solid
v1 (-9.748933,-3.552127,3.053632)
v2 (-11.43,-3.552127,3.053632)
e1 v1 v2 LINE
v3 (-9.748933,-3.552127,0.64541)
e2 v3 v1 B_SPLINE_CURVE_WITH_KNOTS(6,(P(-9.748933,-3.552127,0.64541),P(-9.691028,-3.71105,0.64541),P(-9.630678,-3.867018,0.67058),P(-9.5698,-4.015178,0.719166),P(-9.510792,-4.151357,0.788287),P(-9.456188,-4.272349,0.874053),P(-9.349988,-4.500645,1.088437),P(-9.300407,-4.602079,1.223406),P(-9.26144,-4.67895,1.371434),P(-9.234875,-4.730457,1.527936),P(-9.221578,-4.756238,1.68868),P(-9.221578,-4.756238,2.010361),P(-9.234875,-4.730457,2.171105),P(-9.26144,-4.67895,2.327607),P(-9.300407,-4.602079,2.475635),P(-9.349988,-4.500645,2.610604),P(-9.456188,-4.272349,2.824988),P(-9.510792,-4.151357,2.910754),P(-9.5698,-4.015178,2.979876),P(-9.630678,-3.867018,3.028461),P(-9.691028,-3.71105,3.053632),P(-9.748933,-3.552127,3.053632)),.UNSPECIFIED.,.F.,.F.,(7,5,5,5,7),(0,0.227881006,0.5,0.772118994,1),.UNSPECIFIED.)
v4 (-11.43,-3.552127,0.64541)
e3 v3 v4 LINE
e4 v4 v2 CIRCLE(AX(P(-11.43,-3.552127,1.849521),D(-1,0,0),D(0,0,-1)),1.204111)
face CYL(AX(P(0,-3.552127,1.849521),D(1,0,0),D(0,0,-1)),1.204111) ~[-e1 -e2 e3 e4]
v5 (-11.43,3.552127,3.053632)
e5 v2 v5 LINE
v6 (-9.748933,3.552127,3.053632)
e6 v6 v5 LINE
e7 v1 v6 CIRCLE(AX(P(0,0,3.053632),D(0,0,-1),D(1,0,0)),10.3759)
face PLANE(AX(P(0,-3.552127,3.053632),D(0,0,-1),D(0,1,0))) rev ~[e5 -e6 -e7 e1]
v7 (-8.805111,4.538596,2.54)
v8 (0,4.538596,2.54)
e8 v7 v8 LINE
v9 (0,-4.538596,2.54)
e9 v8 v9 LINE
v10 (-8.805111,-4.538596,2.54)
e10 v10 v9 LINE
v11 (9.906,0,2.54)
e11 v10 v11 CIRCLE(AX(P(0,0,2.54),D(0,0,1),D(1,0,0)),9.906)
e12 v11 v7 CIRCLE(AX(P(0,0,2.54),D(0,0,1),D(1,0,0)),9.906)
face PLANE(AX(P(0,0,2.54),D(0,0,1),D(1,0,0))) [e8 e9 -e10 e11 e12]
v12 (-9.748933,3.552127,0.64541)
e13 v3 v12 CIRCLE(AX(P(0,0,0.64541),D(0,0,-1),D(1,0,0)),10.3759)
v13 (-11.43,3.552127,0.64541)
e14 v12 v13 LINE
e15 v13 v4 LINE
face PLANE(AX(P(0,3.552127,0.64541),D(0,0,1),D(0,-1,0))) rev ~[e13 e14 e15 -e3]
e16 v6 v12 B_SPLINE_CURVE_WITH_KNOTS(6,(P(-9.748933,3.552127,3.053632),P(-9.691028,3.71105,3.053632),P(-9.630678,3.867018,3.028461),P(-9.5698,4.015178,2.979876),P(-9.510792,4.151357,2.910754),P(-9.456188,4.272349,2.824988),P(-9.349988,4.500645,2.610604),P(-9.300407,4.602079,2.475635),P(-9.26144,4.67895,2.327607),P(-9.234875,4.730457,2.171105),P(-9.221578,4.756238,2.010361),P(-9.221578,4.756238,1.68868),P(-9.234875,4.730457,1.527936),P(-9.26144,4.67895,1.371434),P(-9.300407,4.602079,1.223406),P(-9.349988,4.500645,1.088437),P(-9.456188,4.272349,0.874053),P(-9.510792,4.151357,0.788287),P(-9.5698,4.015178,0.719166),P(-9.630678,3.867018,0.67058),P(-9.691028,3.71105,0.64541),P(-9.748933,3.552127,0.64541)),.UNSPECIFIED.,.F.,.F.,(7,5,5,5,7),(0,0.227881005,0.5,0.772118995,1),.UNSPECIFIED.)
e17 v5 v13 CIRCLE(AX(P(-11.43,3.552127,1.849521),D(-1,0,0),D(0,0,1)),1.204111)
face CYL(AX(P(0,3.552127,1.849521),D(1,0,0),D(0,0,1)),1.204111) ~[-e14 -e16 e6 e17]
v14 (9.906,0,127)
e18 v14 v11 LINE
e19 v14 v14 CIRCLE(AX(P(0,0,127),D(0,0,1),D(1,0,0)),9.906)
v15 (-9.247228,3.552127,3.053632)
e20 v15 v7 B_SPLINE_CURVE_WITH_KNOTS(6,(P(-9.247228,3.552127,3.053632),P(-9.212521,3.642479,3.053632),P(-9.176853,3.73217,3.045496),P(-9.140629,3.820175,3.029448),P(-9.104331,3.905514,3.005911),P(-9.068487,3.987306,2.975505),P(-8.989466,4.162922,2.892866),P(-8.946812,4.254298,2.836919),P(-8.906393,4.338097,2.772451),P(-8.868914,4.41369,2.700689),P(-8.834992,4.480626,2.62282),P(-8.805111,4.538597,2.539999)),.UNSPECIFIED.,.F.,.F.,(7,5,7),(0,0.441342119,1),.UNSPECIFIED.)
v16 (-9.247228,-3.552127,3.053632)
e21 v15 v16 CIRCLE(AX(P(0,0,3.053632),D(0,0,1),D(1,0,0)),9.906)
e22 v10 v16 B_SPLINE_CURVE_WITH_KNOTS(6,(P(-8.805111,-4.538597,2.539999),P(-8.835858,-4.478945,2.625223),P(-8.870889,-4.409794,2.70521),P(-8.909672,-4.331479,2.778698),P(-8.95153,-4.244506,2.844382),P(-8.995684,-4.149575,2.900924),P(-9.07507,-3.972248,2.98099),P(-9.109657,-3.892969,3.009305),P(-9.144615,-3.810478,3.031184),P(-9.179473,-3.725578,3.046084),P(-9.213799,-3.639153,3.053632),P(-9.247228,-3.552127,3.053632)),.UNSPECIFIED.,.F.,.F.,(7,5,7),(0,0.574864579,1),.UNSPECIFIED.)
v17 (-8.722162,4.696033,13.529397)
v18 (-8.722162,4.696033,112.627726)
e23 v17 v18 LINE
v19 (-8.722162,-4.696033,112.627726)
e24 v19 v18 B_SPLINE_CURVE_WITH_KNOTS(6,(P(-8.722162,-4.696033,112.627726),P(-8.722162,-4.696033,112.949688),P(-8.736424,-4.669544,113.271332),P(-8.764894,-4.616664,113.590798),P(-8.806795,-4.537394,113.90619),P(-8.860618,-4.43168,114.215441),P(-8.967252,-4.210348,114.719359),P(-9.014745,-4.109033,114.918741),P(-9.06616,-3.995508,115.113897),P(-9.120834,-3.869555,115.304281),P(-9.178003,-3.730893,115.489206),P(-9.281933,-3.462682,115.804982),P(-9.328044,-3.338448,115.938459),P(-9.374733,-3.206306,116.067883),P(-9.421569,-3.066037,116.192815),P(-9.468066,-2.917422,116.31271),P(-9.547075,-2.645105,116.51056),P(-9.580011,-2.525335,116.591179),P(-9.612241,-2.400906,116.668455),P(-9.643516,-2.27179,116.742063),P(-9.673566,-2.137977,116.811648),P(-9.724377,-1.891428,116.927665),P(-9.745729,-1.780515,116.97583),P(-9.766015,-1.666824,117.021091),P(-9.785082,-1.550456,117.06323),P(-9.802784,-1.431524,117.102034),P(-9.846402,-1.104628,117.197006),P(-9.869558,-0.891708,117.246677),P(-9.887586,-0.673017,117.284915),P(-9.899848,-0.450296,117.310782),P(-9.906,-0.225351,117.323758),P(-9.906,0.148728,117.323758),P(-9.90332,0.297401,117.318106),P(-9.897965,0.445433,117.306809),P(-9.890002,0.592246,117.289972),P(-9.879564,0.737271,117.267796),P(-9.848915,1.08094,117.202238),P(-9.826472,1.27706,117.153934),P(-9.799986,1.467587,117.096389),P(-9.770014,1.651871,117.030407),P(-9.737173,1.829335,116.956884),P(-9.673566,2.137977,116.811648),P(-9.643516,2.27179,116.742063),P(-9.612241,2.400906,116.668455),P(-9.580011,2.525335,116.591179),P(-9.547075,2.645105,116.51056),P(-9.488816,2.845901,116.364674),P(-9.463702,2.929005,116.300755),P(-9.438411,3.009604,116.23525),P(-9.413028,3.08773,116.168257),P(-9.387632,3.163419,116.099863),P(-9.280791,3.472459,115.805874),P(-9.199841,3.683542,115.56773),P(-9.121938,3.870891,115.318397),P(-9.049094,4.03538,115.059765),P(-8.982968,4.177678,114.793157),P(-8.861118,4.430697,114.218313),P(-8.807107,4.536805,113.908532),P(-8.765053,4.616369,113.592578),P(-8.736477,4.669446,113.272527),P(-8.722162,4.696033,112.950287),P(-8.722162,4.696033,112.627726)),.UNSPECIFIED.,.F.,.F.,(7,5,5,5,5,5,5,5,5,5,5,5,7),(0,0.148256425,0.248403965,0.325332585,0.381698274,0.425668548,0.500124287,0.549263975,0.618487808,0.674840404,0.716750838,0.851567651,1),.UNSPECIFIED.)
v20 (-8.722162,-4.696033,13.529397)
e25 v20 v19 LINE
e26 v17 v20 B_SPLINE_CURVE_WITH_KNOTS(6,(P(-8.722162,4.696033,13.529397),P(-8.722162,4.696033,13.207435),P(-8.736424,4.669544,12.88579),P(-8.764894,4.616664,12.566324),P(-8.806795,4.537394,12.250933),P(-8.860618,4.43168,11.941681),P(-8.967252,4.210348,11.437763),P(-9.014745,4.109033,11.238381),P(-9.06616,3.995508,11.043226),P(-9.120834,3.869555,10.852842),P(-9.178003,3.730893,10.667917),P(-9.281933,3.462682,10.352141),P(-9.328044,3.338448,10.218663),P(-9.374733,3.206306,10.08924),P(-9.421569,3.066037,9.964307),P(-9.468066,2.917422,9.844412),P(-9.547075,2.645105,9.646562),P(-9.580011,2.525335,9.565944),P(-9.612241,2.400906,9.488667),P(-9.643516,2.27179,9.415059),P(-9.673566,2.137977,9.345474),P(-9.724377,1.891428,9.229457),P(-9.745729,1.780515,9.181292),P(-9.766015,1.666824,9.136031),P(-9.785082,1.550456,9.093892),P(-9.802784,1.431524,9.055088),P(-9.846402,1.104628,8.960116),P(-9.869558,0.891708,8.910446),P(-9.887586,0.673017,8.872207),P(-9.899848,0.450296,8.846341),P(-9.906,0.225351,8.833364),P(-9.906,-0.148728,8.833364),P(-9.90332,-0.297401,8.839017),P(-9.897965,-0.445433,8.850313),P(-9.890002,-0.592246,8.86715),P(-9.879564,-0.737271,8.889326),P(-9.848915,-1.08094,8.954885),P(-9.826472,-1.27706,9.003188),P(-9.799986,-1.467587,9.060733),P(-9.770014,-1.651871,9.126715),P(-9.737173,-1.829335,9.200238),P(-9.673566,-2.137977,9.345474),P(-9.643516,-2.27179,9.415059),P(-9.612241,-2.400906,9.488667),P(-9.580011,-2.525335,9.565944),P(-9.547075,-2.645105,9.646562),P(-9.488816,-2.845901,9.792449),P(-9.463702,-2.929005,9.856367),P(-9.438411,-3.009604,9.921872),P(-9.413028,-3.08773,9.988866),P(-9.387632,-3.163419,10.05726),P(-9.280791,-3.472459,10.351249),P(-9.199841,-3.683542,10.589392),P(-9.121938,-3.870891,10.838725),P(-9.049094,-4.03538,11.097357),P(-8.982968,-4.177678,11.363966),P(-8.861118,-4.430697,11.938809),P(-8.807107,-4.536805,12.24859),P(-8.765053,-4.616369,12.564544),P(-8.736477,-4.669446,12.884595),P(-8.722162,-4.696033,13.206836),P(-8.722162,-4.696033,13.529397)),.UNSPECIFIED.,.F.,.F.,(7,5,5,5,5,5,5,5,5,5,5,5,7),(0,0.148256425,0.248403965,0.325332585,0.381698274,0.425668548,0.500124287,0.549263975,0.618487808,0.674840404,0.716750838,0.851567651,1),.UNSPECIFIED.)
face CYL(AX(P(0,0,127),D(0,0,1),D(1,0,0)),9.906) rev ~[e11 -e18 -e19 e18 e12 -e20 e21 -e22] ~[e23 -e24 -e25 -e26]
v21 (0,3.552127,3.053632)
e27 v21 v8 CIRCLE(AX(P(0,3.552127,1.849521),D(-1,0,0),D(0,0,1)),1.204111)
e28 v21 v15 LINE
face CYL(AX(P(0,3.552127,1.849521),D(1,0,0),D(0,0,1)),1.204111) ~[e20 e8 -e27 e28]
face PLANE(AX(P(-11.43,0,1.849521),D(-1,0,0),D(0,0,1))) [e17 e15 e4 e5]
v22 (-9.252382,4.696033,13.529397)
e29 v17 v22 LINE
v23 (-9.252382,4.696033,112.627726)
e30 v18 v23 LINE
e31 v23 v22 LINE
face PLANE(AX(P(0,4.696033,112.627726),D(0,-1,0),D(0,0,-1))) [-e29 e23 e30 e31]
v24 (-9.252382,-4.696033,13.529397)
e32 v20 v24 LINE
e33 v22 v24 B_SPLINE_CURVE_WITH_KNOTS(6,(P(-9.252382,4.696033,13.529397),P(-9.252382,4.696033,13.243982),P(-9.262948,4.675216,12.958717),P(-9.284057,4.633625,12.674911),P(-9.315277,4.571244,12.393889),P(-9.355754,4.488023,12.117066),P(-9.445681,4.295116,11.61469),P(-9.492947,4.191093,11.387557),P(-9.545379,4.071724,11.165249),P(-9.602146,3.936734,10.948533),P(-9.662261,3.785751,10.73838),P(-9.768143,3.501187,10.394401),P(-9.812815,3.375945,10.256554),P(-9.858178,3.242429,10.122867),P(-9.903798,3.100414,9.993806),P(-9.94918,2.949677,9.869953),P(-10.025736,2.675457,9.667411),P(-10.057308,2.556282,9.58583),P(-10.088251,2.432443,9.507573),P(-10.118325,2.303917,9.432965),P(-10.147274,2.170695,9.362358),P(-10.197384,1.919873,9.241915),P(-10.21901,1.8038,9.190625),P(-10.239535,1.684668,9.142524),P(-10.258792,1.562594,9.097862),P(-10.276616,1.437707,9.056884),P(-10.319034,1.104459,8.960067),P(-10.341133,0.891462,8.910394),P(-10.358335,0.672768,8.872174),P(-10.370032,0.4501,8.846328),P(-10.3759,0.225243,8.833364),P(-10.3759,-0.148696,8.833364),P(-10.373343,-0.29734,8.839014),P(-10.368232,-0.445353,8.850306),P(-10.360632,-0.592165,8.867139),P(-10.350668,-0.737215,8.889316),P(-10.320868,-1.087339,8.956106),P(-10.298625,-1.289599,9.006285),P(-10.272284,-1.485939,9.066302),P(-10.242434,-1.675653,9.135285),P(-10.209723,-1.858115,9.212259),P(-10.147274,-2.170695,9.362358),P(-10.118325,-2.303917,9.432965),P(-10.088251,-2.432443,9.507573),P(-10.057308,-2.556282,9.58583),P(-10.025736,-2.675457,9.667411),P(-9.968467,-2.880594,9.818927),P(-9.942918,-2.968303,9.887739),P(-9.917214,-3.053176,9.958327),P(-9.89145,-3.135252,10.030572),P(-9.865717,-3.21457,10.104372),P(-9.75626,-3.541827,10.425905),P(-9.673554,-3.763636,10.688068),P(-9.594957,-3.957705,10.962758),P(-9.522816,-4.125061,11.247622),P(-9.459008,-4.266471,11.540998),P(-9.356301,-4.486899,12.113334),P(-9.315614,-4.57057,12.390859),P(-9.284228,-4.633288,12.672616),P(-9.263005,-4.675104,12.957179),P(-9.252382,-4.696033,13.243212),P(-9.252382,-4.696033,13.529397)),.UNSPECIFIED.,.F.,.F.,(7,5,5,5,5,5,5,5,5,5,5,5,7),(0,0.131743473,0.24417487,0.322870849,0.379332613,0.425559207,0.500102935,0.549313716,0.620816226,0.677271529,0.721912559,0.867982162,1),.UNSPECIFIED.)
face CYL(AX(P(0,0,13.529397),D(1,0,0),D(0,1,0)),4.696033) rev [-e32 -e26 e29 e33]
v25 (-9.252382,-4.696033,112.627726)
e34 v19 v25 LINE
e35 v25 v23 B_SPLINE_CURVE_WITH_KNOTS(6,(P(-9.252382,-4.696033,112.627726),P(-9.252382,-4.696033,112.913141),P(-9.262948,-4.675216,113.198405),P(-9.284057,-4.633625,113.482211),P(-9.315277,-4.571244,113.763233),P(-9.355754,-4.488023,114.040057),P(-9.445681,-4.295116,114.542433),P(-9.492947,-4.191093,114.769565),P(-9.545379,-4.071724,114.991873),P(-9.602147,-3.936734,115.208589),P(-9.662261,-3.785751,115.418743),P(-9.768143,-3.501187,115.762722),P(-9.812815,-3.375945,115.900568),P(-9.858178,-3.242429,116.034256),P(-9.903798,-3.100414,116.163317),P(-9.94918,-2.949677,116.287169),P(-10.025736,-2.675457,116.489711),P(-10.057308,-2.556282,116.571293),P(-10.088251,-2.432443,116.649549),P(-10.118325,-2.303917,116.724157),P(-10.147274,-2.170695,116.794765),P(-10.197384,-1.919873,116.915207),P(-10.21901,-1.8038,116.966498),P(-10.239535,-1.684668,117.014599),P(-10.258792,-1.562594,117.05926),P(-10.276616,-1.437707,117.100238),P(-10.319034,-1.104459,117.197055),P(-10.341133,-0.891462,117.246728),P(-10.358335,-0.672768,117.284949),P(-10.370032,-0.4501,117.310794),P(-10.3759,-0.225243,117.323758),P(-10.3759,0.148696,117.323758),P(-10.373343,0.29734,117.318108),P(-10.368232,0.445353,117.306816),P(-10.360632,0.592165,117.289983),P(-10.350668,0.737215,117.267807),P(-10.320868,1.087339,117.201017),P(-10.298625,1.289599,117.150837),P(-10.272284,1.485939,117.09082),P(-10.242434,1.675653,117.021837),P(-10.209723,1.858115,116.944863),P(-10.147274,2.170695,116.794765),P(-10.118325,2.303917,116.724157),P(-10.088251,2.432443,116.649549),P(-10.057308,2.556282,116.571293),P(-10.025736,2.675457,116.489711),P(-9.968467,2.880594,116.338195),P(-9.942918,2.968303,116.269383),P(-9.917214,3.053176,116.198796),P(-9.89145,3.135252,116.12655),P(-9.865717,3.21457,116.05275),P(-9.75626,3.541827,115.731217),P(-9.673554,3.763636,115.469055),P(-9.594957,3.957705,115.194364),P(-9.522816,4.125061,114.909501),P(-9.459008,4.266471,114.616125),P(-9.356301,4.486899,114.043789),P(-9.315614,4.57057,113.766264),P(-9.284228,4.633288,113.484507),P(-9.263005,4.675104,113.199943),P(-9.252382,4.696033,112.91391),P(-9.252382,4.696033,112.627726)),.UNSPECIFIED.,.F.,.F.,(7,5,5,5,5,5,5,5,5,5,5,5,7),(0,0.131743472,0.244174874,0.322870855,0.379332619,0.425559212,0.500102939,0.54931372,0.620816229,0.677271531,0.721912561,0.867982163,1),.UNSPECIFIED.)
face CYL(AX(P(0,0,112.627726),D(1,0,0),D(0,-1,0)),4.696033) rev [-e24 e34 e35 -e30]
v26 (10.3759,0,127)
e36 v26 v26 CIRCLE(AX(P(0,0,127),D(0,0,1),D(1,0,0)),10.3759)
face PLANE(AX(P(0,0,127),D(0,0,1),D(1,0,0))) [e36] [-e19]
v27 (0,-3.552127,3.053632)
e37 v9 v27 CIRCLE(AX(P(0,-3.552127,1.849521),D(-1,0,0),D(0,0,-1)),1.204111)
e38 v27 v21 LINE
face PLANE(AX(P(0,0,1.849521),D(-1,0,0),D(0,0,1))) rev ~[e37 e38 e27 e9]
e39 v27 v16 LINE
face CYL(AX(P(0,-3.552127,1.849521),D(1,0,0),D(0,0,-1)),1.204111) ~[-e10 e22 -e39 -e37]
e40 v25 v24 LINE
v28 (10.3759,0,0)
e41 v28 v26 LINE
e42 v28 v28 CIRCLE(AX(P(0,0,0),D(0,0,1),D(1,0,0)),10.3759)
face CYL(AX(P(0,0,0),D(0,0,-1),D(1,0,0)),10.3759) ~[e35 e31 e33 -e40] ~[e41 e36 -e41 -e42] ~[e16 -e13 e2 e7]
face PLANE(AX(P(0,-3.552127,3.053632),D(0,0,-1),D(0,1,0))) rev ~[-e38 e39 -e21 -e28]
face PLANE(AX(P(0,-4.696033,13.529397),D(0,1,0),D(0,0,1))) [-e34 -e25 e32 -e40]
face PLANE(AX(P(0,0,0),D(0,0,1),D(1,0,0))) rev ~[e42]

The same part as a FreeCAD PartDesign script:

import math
import FreeCAD as App
import Part
import Sketcher
from FreeCAD import Vector
Q = App.Units.Quantity

doc = App.newDocument("Part")
params = doc.addObject("Spreadsheet::Sheet", "Params")
for row, (alias, value) in enumerate([
    ("sketch1_diameter", "0.817 in"),
    ("pad1_length", "5 in"),
    ("sketch2_diameter", "0.78 in"),
    ("pocket1_length", "4.9 in"),
    ("pocket2_length", "0.5 in"),
    ("pad2_length", "0.45 in"),
], start=1):
    params.set(f"A{row}", alias)
    params.set(f"B{row}", "=" + value)
    params.setAlias(f"B{row}", alias)

body = doc.addObject("PartDesign::Body", "Body")

sketch1 = doc.addObject("Sketcher::SketchObject", "Sketch")
body.addObject(sketch1)
sketch1.AttachmentSupport = (doc.XY_Plane, [""])
sketch1.MapMode = "FlatFace"
sketch1.addGeometry(Part.Circle(Vector(0, 0, 0), Vector(0, 0, 1), 10), False)
sketch1.addConstraint(Sketcher.Constraint("Coincident", 0, 3, -1, 1))
sketch1.addConstraint(Sketcher.Constraint("Diameter", 0, Q("0.817 in")))
sketch1.setExpression("Constraints[1]", "Params.sketch1_diameter")
pad1 = doc.addObject("PartDesign::Pad", "Pad")
body.addObject(pad1)
pad1.Profile = sketch1
pad1.setExpression("Length", "Params.pad1_length")

sketch2 = doc.addObject("Sketcher::SketchObject", "Sketch001")
body.addObject(sketch2)
sketch2.AttachmentSupport = (doc.XY_Plane, [""])
sketch2.MapMode = "FlatFace"
sketch2.AttachmentOffset = App.Placement(Vector(0, 0, 5 * 25.4), App.Rotation())
sketch2.addGeometry(Part.Circle(Vector(0, 0, 0), Vector(0, 0, 1), 10), False)
sketch2.addConstraint(Sketcher.Constraint("Coincident", 0, 3, -1, 1))
sketch2.addConstraint(Sketcher.Constraint("Diameter", 0, Q("0.78 in")))
sketch2.setExpression("Constraints[1]", "Params.sketch2_diameter")
pocket1 = doc.addObject("PartDesign::Pocket", "Pocket")
body.addObject(pocket1)
pocket1.Profile = sketch2
pocket1.setExpression("Length", "Params.pocket1_length")

sketch3 = doc.addObject("Sketcher::SketchObject", "Sketch002")
body.addObject(sketch3)
sketch3.AttachmentSupport = (doc.YZ_Plane, [""])
sketch3.MapMode = "FlatFace"
sketch3.addGeometry(Part.LineSegment(Vector(4.7, 13.5, 0), Vector(4.7, 112.6, 0)), False)
sketch3.addGeometry(Part.ArcOfCircle(Part.Circle(Vector(0, 112.6, 0), Vector(0, 0, 1), 4.7), math.radians(0), math.radians(180)), False)
sketch3.addGeometry(Part.LineSegment(Vector(-4.7, 112.6, 0), Vector(-4.7, 13.5, 0)), False)
sketch3.addGeometry(Part.ArcOfCircle(Part.Circle(Vector(0, 13.5, 0), Vector(0, 0, 1), 4.7), math.radians(180), math.radians(360)), False)
sketch3.addConstraint(Sketcher.Constraint("Tangent", 0, 2, 1, 1))
sketch3.addConstraint(Sketcher.Constraint("Tangent", 1, 2, 2, 1))
sketch3.addConstraint(Sketcher.Constraint("Tangent", 2, 2, 3, 1))
sketch3.addConstraint(Sketcher.Constraint("Tangent", 3, 2, 0, 1))
sketch3.addConstraint(Sketcher.Constraint("Vertical", 0))
sketch3.addConstraint(Sketcher.Constraint("Vertical", 2))
sketch3.addConstraint(Sketcher.Constraint("PointOnObject", 1, 3, -2))
sketch3.addConstraint(Sketcher.Constraint("Radius", 1, 4.696033))
sketch3.addConstraint(Sketcher.Constraint("DistanceY", 0, 1, 0, 2, 99.098329))
sketch3.addConstraint(Sketcher.Constraint("DistanceY", -1, 1, 1, 3, 112.627726))
pocket2 = doc.addObject("PartDesign::Pocket", "Pocket001")
body.addObject(pocket2)
pocket2.Profile = sketch3
pocket2.setExpression("Length", "Params.pocket2_length")

sketch4 = doc.addObject("Sketcher::SketchObject", "Sketch003")
body.addObject(sketch4)
sketch4.AttachmentSupport = (doc.YZ_Plane, [""])
sketch4.MapMode = "FlatFace"
sketch4.addGeometry(Part.LineSegment(Vector(-3.6, 0.6, 0), Vector(3.6, 0.6, 0)), False)
sketch4.addGeometry(Part.ArcOfCircle(Part.Circle(Vector(3.6, 1.8, 0), Vector(0, 0, 1), 1.2), math.radians(-90), math.radians(90)), False)
sketch4.addGeometry(Part.LineSegment(Vector(3.6, 3.1, 0), Vector(-3.6, 3.1, 0)), False)
sketch4.addGeometry(Part.ArcOfCircle(Part.Circle(Vector(-3.6, 1.8, 0), Vector(0, 0, 1), 1.2), math.radians(90), math.radians(270)), False)
sketch4.addConstraint(Sketcher.Constraint("Tangent", 0, 2, 1, 1))
sketch4.addConstraint(Sketcher.Constraint("Tangent", 1, 2, 2, 1))
sketch4.addConstraint(Sketcher.Constraint("Tangent", 2, 2, 3, 1))
sketch4.addConstraint(Sketcher.Constraint("Tangent", 3, 2, 0, 1))
sketch4.addConstraint(Sketcher.Constraint("Horizontal", 0))
sketch4.addConstraint(Sketcher.Constraint("Horizontal", 2))
sketch4.addConstraint(Sketcher.Constraint("Radius", 1, 1.204111))
sketch4.addConstraint(Sketcher.Constraint("DistanceX", 0, 1, 0, 2, 7.104254))
sketch4.addConstraint(Sketcher.Constraint("DistanceY", -1, 1, 1, 3, 1.849521))
sketch4.addConstraint(Sketcher.Constraint("DistanceX", -1, 1, 1, 3, 3.552127))
pad2 = doc.addObject("PartDesign::Pad", "Pad001")
body.addObject(pad2)
pad2.Profile = sketch4
pad2.setExpression("Length", "Params.pad2_length")
pad2.Reversed = True

doc.recompute()
